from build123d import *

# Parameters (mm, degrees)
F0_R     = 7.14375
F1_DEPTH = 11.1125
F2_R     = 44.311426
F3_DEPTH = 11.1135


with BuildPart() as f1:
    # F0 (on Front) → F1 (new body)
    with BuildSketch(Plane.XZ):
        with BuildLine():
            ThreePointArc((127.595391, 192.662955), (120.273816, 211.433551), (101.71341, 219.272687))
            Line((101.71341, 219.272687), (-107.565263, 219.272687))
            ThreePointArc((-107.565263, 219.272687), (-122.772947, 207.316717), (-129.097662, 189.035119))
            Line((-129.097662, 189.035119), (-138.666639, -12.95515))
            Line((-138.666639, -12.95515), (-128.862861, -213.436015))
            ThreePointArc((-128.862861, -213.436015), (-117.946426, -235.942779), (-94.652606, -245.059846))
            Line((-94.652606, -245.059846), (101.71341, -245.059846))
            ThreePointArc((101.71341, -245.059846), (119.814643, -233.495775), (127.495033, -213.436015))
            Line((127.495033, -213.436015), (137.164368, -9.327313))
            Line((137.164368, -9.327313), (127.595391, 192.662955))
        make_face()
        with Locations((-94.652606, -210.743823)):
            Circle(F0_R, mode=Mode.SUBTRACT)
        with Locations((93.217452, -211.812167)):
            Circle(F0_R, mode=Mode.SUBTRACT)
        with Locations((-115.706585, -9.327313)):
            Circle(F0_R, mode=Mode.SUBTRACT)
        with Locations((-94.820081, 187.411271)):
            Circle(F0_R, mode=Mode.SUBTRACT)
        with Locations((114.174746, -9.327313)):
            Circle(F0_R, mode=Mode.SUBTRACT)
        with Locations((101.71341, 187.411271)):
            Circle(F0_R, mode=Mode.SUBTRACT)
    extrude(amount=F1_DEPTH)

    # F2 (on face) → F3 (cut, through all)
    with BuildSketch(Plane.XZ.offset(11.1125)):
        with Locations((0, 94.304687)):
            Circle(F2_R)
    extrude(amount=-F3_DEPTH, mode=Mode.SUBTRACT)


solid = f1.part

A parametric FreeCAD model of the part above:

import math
import FreeCAD as App
import Part
import Sketcher

V = App.Vector
Q = App.Units.Quantity

doc = App.newDocument("Part")
body = doc.addObject("PartDesign::Body", "Body")

# Sketch on XZ plane
sketch1 = doc.addObject("Sketcher::SketchObject", "Sketch")
body.addObject(sketch1)
sketch1.AttachmentSupport = (doc.XZ_Plane, [""])
sketch1.MapMode = "FlatFace"
sketch1.addGeometry([
    Part.ArcOfCircle(Part.Circle(V(101.713408, 193.380753, 0), V(0, 0, 1), 25.891934), math.radians(-1.588605), math.radians(89.999996)),  # 0
    Part.LineSegment(V(101.71341, 219.272687, 0), V(-107.565263, 219.272687, 0)),  # 1
    Part.ArcOfCircle(Part.Circle(V(-94.820083, 187.411273, 0), V(0, 0, 1), 34.316021), math.radians(111.802362), math.radians(177.287731)),  # 2
    Part.LineSegment(V(-129.097662, 189.035119, 0), V(-138.666639, -12.95515, 0)),  # 3
    Part.LineSegment(V(-138.666639, -12.95515, 0), V(-128.862861, -213.436015, 0)),  # 4
    Part.ArcOfCircle(Part.Circle(V(-94.652606, -210.743823, 0), V(0, 0, 1), 34.316023), math.radians(-175.500355), math.radians(-90)),  # 5
    Part.LineSegment(V(-94.652606, -245.059846, 0), V(101.71341, -245.059846, 0)),  # 6
    Part.ArcOfCircle(Part.Circle(V(93.21745, -211.812166, 0), V(0, 0, 1), 34.316025), math.radians(-75.665648), math.radians(-2.712274)),  # 7
    Part.LineSegment(V(127.495033, -213.436015, 0), V(137.164368, -9.327313, 0)),  # 8
    Part.LineSegment(V(137.164368, -9.327313, 0), V(127.595391, 192.662955, 0)),  # 9
    Part.Circle(V(-94.652606, -210.743823, 0), V(0, 0, 1), 7.14375),  # 10
    Part.Circle(V(93.217452, -211.812167, 0), V(0, 0, 1), 7.14375),  # 11
    Part.Circle(V(-115.706585, -9.327313, 0), V(0, 0, 1), 7.14375),  # 12
    Part.Circle(V(-94.820081, 187.411271, 0), V(0, 0, 1), 7.14375),  # 13
    Part.Circle(V(114.174746, -9.327313, 0), V(0, 0, 1), 7.14375),  # 14
    Part.Circle(V(101.71341, 187.411271, 0), V(0, 0, 1), 7.14375),  # 15
], False)
sketch1.addConstraint([
    Sketcher.Constraint("Coincident", 0, 2, 1, 1),
    Sketcher.Constraint("Coincident", 1, 2, 2, 1),
    Sketcher.Constraint("Coincident", 2, 2, 3, 1),
    Sketcher.Constraint("Coincident", 3, 2, 4, 1),
    Sketcher.Constraint("Coincident", 4, 2, 5, 1),
    Sketcher.Constraint("Coincident", 5, 2, 6, 1),
    Sketcher.Constraint("Coincident", 6, 2, 7, 1),
    Sketcher.Constraint("Coincident", 7, 2, 8, 1),
    Sketcher.Constraint("Coincident", 8, 2, 9, 1),
    Sketcher.Constraint("Coincident", 9, 2, 0, 1),
    Sketcher.Constraint("Horizontal", 1),
    Sketcher.Constraint("Horizontal", 6),
    Sketcher.Constraint("Coincident", 10, 3, 5, 3),
    Sketcher.Constraint("Coincident", 11, 3, 7, 3),
    Sketcher.Constraint("Coincident", 13, 3, 2, 3),
    Sketcher.Constraint("Diameter", 10, Q("0.5625 in")),
    Sketcher.Constraint("Diameter", 11, Q("0.5625 in")),
    Sketcher.Constraint("Diameter", 12, Q("0.5625 in")),
    Sketcher.Constraint("Diameter", 13, Q("0.5625 in")),
    Sketcher.Constraint("Diameter", 14, Q("0.5625 in")),
    Sketcher.Constraint("Diameter", 15, Q("0.5625 in")),
    Sketcher.Constraint("DistanceY", 14, 3, 0, 2, Q("9 in")),
    Sketcher.Constraint("Radius", 2, 34.316021),
    Sketcher.Constraint("Radius", 0, 25.891934),
    Sketcher.Constraint("Radius", 5, 34.316023),
    Sketcher.Constraint("Radius", 7, 34.316025),
    Sketcher.Constraint("Distance", 3, 202.2168),
    Sketcher.Constraint("Distance", 9, 202.216799),
    Sketcher.Constraint("DistanceX", 2, 2, 1, 2, 21.532399),
    Sketcher.Constraint("DistanceY", 4, 2, 12, 3, 204.108702),
    Sketcher.Constraint("Distance", 4, 200.720431),
    Sketcher.Constraint("Distance", 8, 204.337609),
    Sketcher.Constraint("DistanceX", 1, 2, 1, 1, 209.278673),
    Sketcher.Constraint("DistanceX", 6, 1, 6, 2, 196.366016),
    Sketcher.Constraint("DistanceX", -1, 1, 0, 3, 101.713408),
    Sketcher.Constraint("DistanceX", -1, 1, 7, 3, 93.21745),
    Sketcher.Constraint("DistanceX", 13, 3, -1, 1, 94.820081),
    Sketcher.Constraint("DistanceY", -1, 1, 13, 3, 187.411271),
    Sketcher.Constraint("DistanceX", -1, 1, 15, 3, 101.71341),
    Sketcher.Constraint("DistanceY", -1, 1, 15, 3, 187.411271),
    Sketcher.Constraint("DistanceY", -1, 1, 2, 2, 189.035119),
    Sketcher.Constraint("DistanceX", 3, 2, -1, 1, 138.666639),
    Sketcher.Constraint("DistanceX", 4, 2, -1, 1, 128.862861),
    Sketcher.Constraint("DistanceX", -1, 1, 6, 2, 101.71341),
    Sketcher.Constraint("DistanceX", -1, 1, 8, 2, 137.164368),
    Sketcher.Constraint("DistanceX", -1, 1, 9, 2, 127.595391),
    Sketcher.Constraint("DistanceY", 7, 3, 0, 3, 405.192919),
    Sketcher.Constraint("DistanceX", 12, 3, 5, 3, 21.053979),
    Sketcher.Constraint("DistanceX", 12, 3, 14, 3, 229.881331),
])
pad1 = doc.addObject("PartDesign::Pad", "Pad")
body.addObject(pad1)
pad1.Profile = sketch1
pad1.Length = Q("0.4375 in")

# Sketch on XZ plane
sketch2 = doc.addObject("Sketcher::SketchObject", "Sketch001")
body.addObject(sketch2)
sketch2.AttachmentSupport = (doc.XZ_Plane, [""])
sketch2.MapMode = "FlatFace"
sketch2.AttachmentOffset = App.Placement(V(0, 0, 0.4375 * 25.4), App.Rotation())
sketch2.addGeometry(Part.Circle(V(0, 94, 0), V(0, 0, 1), 44), False)
sketch2.addConstraint([
    Sketcher.Constraint("PointOnObject", 0, 3, -2),
    Sketcher.Constraint("Diameter", 0, 88.622852),
    Sketcher.Constraint("DistanceY", -1, 1, 0, 3, 94.304687),
])
pocket1 = doc.addObject("PartDesign::Pocket", "Pocket")
body.addObject(pocket1)
pocket1.Profile = sketch2
pocket1.Type = "ThroughAll"

doc.recompute()
